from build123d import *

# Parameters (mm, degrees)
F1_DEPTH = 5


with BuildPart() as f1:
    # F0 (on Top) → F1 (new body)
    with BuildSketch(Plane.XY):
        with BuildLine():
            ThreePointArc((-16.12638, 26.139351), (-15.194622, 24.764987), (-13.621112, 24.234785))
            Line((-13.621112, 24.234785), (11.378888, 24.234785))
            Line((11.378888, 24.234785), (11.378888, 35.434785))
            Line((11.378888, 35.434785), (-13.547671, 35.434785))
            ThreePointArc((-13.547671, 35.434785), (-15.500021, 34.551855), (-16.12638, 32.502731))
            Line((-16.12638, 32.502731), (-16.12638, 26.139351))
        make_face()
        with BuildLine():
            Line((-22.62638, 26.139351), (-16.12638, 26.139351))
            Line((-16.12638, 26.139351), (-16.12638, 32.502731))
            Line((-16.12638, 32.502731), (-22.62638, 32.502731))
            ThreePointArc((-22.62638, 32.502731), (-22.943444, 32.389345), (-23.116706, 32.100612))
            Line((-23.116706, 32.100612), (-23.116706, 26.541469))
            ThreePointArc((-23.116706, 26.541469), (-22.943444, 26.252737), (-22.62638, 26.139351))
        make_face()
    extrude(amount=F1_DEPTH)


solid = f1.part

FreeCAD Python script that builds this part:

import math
import FreeCAD as App
import Part
import Sketcher
from FreeCAD import Vector

doc = App.newDocument("Part")
body = doc.addObject("PartDesign::Body", "Body")

# Sketch on XY plane
sketch1 = body.newObject("Sketcher::SketchObject", "Sketch")
sketch1.AttachmentSupport = (doc.getObject("XY_Plane"), [""])
sketch1.MapMode = "FlatFace"
sketch1.addGeometry(Part.ArcOfCircle(Part.Circle(Vector(-13.621111, 26.834785, 0), Vector(0, 0, 1), 2.6), math.radians(-164.485951), math.radians(-90.000018)), False)
sketch1.addGeometry(Part.LineSegment(Vector(-13.621112, 24.234785, 0), Vector(11.378888, 24.234785, 0)), False)
sketch1.addGeometry(Part.LineSegment(Vector(11.378888, 24.234785, 0), Vector(11.378888, 35.434785, 0)), False)
sketch1.addGeometry(Part.LineSegment(Vector(11.378888, 35.434785, 0), Vector(-13.547671, 35.434785, 0)), False)
sketch1.addGeometry(Part.ArcOfCircle(Part.Circle(Vector(-13.547671, 32.834785, 0), Vector(0, 0, 1), 2.6), math.radians(90.000001), math.radians(187.337459)), False)
sketch1.addGeometry(Part.LineSegment(Vector(-16.12638, 32.502731, 0), Vector(-22.62638, 32.502731, 0)), False)
sketch1.addGeometry(Part.ArcOfCircle(Part.Circle(Vector(-22.62638, 32.00273, 0), Vector(0, 0, 1), 0.500001), math.radians(90.000036), math.radians(168.710691)), False)
sketch1.addGeometry(Part.LineSegment(Vector(-23.116706, 32.100612, 0), Vector(-23.116706, 26.541469, 0)), False)
sketch1.addGeometry(Part.ArcOfCircle(Part.Circle(Vector(-22.62638, 26.639352, 0), Vector(0, 0, 1), 0.500001), math.radians(-168.710533), math.radians(-90.000054)), False)
sketch1.addGeometry(Part.LineSegment(Vector(-22.62638, 26.139351, 0), Vector(-16.12638, 26.139351, 0)), False)
sketch1.addConstraint(Sketcher.Constraint("Tangent", 0, 2, 1, 1))
sketch1.addConstraint(Sketcher.Constraint("Coincident", 1, 2, 2, 1))
sketch1.addConstraint(Sketcher.Constraint("Coincident", 2, 2, 3, 1))
sketch1.addConstraint(Sketcher.Constraint("Tangent", 3, 2, 4, 1))
sketch1.addConstraint(Sketcher.Constraint("Coincident", 4, 2, 5, 1))
sketch1.addConstraint(Sketcher.Constraint("Tangent", 5, 2, 6, 1))
sketch1.addConstraint(Sketcher.Constraint("Coincident", 6, 2, 7, 1))
sketch1.addConstraint(Sketcher.Constraint("Coincident", 7, 2, 8, 1))
sketch1.addConstraint(Sketcher.Constraint("Tangent", 8, 2, 9, 1))
sketch1.addConstraint(Sketcher.Constraint("Coincident", 9, 2, 0, 1))
sketch1.addConstraint(Sketcher.Constraint("Horizontal", 1))
sketch1.addConstraint(Sketcher.Constraint("Vertical", 2))
sketch1.addConstraint(Sketcher.Constraint("Horizontal", 3))
sketch1.addConstraint(Sketcher.Constraint("Horizontal", 5))
sketch1.addConstraint(Sketcher.Constraint("Vertical", 7))
sketch1.addConstraint(Sketcher.Constraint("Horizontal", 9))
sketch1.addConstraint(Sketcher.Constraint("Equal", 0, 4))
sketch1.addConstraint(Sketcher.Constraint("Equal", 6, 8))
sketch1.addConstraint(Sketcher.Constraint("Vertical", 6, 3, 8, 3))
sketch1.addConstraint(Sketcher.Constraint("Vertical", 4, 2, 9, 2))
sketch1.addConstraint(Sketcher.Constraint("Radius", 0, 2.6))
sketch1.addConstraint(Sketcher.Constraint("Radius", 6, 0.500001))
sketch1.addConstraint(Sketcher.Constraint("DistanceX", 1, 1, 1, 2, 25.0))
sketch1.addConstraint(Sketcher.Constraint("DistanceX", 5, 2, 5, 1, 6.5))
sketch1.addConstraint(Sketcher.Constraint("DistanceY", 2, 1, 2, 2, 11.2))
sketch1.addConstraint(Sketcher.Constraint("DistanceX", 3, 2, 3, 1, 24.926559))
sketch1.addConstraint(Sketcher.Constraint("DistanceY", 7, 2, 7, 1, 5.559143))
sketch1.addConstraint(Sketcher.Constraint("DistanceX", 0, 3, -1, 1, 13.621111))
sketch1.addConstraint(Sketcher.Constraint("DistanceX", 6, 3, -1, 1, 22.62638))
sketch1.addConstraint(Sketcher.Constraint("DistanceY", -1, 1, 6, 3, 32.00273))
pad1 = body.newObject("PartDesign::Pad", "Pad")
pad1.Profile = sketch1
pad1.Length = 5

doc.recompute()
